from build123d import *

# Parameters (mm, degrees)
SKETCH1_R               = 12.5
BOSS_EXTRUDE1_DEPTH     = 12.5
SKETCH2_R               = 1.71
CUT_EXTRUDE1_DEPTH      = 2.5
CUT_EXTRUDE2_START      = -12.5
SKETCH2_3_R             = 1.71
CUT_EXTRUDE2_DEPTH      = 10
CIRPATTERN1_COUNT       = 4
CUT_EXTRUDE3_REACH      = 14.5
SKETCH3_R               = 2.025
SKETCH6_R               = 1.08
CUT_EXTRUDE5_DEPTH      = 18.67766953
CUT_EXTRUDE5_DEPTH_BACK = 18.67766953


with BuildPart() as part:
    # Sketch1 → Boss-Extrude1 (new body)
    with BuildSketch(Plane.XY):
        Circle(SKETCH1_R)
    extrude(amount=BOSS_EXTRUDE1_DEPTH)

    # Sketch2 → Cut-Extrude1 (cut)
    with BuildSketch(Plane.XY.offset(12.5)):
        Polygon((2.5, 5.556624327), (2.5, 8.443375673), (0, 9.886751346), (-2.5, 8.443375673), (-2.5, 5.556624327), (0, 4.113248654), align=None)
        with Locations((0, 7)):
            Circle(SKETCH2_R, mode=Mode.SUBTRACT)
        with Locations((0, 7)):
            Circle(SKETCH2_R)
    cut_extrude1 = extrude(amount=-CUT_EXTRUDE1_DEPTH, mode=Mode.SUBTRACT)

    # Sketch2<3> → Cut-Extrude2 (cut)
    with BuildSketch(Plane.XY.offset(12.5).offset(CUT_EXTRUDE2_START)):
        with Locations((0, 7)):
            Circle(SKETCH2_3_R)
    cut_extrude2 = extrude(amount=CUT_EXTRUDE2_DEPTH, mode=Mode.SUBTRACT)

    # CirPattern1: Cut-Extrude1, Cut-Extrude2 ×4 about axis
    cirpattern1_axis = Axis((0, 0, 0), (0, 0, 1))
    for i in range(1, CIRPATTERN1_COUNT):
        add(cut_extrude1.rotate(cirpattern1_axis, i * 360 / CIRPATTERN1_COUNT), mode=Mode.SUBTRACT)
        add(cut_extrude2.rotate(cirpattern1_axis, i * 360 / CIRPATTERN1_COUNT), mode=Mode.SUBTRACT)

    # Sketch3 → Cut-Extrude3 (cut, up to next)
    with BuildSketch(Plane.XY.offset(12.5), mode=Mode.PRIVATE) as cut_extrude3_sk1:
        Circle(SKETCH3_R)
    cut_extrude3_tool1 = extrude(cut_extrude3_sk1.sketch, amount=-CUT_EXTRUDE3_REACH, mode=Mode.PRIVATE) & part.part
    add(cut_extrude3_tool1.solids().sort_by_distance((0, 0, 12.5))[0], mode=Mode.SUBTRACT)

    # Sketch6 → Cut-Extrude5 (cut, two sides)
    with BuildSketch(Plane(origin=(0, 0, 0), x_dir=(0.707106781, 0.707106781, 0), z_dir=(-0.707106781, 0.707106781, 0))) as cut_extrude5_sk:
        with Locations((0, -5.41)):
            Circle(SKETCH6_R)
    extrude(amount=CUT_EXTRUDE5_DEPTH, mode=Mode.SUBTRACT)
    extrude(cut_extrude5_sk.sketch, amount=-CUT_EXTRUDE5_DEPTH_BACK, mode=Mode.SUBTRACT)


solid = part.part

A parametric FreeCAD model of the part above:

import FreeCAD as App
import Part
import Sketcher

V = App.Vector
Q = App.Units.Quantity

doc = App.newDocument("Part")
params = doc.addObject("Spreadsheet::Sheet", "Params")
for row, (alias, value) in enumerate([
    ("sketch1_diameter", "25 mm"),
    ("pad1_length", "12.5 mm"),
    ("pocket1_length", "2.5 mm"),
    ("sketch3_diameter", "3.42 mm"),
    ("pocket2_length", "10 mm"),
    ("sketch4_diameter", "4.05 mm"),
    ("sketch5_diameter", "2.16 mm"),
], start=1):
    params.set(f"A{row}", alias)
    params.set(f"B{row}", "=" + value)
    params.setAlias(f"B{row}", alias)

body = doc.addObject("PartDesign::Body", "Body")

# Sketch on XY plane
sketch1 = body.newObject("Sketcher::SketchObject", "Sketch")
sketch1.AttachmentSupport = (doc.getObject("XY_Plane"), [""])
sketch1.MapMode = "FlatFace"
sketch1.addGeometry(Part.Circle(V(0, 0, 0), V(0, 0, 1), 12), False)
sketch1.addConstraint([
    Sketcher.Constraint("Coincident", 0, 3, -1, 1),
    Sketcher.Constraint("Diameter", 0, 25.0),
])
sketch1.setExpression("Constraints[1]", "Params.sketch1_diameter")
pad1 = body.newObject("PartDesign::Pad", "Pad")
pad1.Profile = sketch1
pad1.setExpression("Length", "Params.pad1_length")

# Sketch on XY plane
sketch2 = body.newObject("Sketcher::SketchObject", "Sketch001")
sketch2.AttachmentSupport = (doc.getObject("XY_Plane"), [""])
sketch2.MapMode = "FlatFace"
sketch2.AttachmentOffset = App.Placement(V(0, 0, 12.5), App.Rotation())
sketch2.addGeometry([
    Part.LineSegment(V(2.5, 5.6, 0), V(2.5, 8.4, 0)),  # 0
    Part.LineSegment(V(2.5, 8.4, 0), V(0, 9.9, 0)),  # 1
    Part.LineSegment(V(0, 9.9, 0), V(-2.5, 8.4, 0)),  # 2
    Part.LineSegment(V(-2.5, 8.4, 0), V(-2.5, 5.6, 0)),  # 3
    Part.LineSegment(V(-2.5, 5.6, 0), V(0, 4.1, 0)),  # 4
    Part.LineSegment(V(0, 4.1, 0), V(2.5, 5.6, 0)),  # 5
], False)
sketch2.addConstraint([
    Sketcher.Constraint("Coincident", 0, 2, 1, 1),
    Sketcher.Constraint("Coincident", 1, 2, 2, 1),
    Sketcher.Constraint("Coincident", 2, 2, 3, 1),
    Sketcher.Constraint("Coincident", 3, 2, 4, 1),
    Sketcher.Constraint("Coincident", 4, 2, 5, 1),
    Sketcher.Constraint("Coincident", 5, 2, 0, 1),
    Sketcher.Constraint("Vertical", 0),
    Sketcher.Constraint("Vertical", 3),
    Sketcher.Constraint("Symmetric", 0, 2, 2, 2, -2),
    Sketcher.Constraint("PointOnObject", 1, 2, -2),
    Sketcher.Constraint("PointOnObject", 4, 2, -2),
    Sketcher.Constraint("Parallel", 1, 4),
    Sketcher.Constraint("Parallel", 2, 5),
    Sketcher.Constraint("Angle", 1, Q("150 deg")),
    Sketcher.Constraint("DistanceX", 2, 2, 0, 2, 5.0),
    Sketcher.Constraint("DistanceY", 0, 1, 0, 2, 2.886751),
    Sketcher.Constraint("DistanceY", -1, 1, 1, 2, 9.886751),
])
pocket1 = body.newObject("PartDesign::Pocket", "Pocket")
pocket1.Profile = sketch2
pocket1.setExpression("Length", "Params.pocket1_length")

# Sketch on XY plane
sketch3 = body.newObject("Sketcher::SketchObject", "Sketch002")
sketch3.AttachmentSupport = (doc.getObject("XY_Plane"), [""])
sketch3.MapMode = "FlatFace"
sketch3.addGeometry(Part.Circle(V(0, 7, 0), V(0, 0, 1), 1.7), False)
sketch3.addConstraint([
    Sketcher.Constraint("PointOnObject", 0, 3, -2),
    Sketcher.Constraint("Diameter", 0, 3.42),
    Sketcher.Constraint("DistanceY", -1, 1, 0, 3, 7.0),
])
sketch3.setExpression("Constraints[1]", "Params.sketch3_diameter")
pocket2 = body.newObject("PartDesign::Pocket", "Pocket001")
pocket2.Profile = sketch3
pocket2.setExpression("Length", "Params.pocket2_length")
pocket2.Reversed = True
doc.recompute()

polarpattern = body.newObject("PartDesign::PolarPattern", "PolarPattern")
polarpattern.Originals = [pocket1, pocket2]
polarpattern.Axis = (doc.getObject("Z_Axis"), [""])
polarpattern.Angle = 360
polarpattern.Occurrences = 4
body.Tip = polarpattern

# Sketch on XY plane
sketch4 = body.newObject("Sketcher::SketchObject", "Sketch003")
sketch4.AttachmentSupport = (doc.getObject("XY_Plane"), [""])
sketch4.MapMode = "FlatFace"
sketch4.AttachmentOffset = App.Placement(V(0, 0, 12.5), App.Rotation())
sketch4.addGeometry(Part.Circle(V(0, 0, 0), V(0, 0, 1), 2), False)
sketch4.addConstraint([
    Sketcher.Constraint("Coincident", 0, 3, -1, 1),
    Sketcher.Constraint("Diameter", 0, 4.05),
])
sketch4.setExpression("Constraints[1]", "Params.sketch4_diameter")
pocket3 = body.newObject("PartDesign::Pocket", "Pocket002")
pocket3.Profile = sketch4
pocket3.Type = "UpToFirst"

# Sketch on an angled plane
sketch5 = body.newObject("Sketcher::SketchObject", "Sketch004")
sketch5.Placement = App.Placement(V(0, 0, 0), App.Rotation(V(0.707106781, 0.707106781, 0), V(0, 0, -0.999999999), V(-0.707106781, 0.707106781, 0), "ZXY"))
sketch5.addGeometry(Part.Circle(V(0, -5.4, 0), V(0, 0, 1), 1.1), False)
sketch5.addConstraint([
    Sketcher.Constraint("PointOnObject", 0, 3, -2),
    Sketcher.Constraint("Diameter", 0, 2.16),
    Sketcher.Constraint("DistanceY", 0, 3, -1, 1, 5.41),
])
sketch5.setExpression("Constraints[1]", "Params.sketch5_diameter")
pocket4 = body.newObject("PartDesign::Pocket", "Pocket003")
pocket4.Profile = sketch5
pocket4.Type = "ThroughAll"
pocket4.Midplane = True

doc.recompute()
